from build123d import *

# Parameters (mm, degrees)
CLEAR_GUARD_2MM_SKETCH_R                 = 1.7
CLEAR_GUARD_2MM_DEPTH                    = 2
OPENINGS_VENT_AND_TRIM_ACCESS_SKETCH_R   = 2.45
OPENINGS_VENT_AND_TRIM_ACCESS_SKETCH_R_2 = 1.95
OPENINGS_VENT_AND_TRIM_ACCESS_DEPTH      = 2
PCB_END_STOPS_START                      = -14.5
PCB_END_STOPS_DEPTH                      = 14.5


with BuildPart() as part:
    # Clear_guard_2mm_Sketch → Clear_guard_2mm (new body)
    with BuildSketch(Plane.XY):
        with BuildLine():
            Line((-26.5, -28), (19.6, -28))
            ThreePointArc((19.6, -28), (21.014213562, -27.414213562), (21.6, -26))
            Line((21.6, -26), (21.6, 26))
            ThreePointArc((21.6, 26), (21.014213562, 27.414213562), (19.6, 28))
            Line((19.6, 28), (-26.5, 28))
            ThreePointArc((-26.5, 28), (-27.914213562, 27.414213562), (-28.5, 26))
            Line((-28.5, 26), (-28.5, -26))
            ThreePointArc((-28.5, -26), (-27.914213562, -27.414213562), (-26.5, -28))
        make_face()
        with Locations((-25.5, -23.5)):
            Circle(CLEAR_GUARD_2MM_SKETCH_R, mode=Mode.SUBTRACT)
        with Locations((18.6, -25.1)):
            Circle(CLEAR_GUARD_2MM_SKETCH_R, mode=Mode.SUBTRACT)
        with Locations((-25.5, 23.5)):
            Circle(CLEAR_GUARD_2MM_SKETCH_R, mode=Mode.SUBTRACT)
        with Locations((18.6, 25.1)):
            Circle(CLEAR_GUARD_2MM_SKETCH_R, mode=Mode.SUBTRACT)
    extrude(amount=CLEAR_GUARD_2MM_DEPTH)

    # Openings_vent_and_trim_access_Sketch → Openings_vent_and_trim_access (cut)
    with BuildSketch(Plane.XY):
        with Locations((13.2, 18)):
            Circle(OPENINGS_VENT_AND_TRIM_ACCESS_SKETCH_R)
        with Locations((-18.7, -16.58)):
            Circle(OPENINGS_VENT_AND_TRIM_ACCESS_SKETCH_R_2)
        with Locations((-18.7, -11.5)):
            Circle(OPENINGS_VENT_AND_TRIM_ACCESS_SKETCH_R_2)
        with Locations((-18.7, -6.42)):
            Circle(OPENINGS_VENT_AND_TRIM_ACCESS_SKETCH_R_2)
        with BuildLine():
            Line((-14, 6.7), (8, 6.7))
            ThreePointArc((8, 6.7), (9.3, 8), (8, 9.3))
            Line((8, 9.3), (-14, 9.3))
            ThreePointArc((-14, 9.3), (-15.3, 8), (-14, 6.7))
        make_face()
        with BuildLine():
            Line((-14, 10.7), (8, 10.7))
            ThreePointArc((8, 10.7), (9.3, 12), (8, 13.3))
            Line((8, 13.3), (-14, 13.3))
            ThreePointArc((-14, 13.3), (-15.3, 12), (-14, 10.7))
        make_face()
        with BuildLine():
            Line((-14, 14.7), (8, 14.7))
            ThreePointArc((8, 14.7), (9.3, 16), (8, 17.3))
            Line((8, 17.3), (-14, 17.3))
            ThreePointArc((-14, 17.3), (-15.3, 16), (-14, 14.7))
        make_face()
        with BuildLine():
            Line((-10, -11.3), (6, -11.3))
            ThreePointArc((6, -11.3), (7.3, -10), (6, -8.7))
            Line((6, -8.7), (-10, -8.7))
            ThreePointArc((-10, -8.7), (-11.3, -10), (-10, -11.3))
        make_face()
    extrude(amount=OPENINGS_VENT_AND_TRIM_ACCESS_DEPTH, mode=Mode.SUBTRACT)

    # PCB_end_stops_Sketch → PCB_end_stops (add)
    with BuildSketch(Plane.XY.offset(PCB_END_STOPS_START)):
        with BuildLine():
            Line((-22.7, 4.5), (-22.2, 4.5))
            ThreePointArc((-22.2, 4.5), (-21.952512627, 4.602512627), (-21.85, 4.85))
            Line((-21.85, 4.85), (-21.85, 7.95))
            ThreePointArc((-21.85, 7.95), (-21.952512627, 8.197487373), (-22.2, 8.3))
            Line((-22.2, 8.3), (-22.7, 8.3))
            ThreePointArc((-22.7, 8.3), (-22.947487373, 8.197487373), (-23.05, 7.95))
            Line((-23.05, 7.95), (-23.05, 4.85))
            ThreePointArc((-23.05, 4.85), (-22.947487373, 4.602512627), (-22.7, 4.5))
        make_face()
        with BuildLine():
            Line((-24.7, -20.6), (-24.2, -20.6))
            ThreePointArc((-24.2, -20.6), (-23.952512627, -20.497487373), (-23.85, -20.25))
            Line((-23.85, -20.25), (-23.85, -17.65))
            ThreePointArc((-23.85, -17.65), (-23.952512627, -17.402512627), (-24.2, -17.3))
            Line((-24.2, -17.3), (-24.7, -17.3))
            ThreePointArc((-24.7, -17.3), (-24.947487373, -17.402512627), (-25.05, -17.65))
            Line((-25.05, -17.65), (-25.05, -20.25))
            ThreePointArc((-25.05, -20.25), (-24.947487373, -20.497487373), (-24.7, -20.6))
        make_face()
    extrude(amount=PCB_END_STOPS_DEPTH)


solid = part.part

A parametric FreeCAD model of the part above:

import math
import FreeCAD as App
import Part
import Sketcher

V = App.Vector

doc = App.newDocument("Part")
body = doc.addObject("PartDesign::Body", "Body")

sketch1 = body.newObject("Sketcher::SketchObject", "Sketch")
sketch1.AttachmentSupport = (doc.getObject("XY_Plane"), [""])
sketch1.MapMode = "FlatFace"
sketch1.addGeometry([
    Part.LineSegment(V(-26.5, -28, 0), V(19.6, -28, 0)),
    Part.ArcOfCircle(Part.Circle(V(19.6, -26, 0), V(0, 0, 1), 2), math.radians(-90), math.radians(0)),
    Part.LineSegment(V(21.6, -26, 0), V(21.6, 26, 0)),
    Part.ArcOfCircle(Part.Circle(V(19.6, 26, 0), V(0, 0, 1), 2), math.radians(0), math.radians(90)),
    Part.LineSegment(V(19.6, 28, 0), V(-26.5, 28, 0)),
    Part.ArcOfCircle(Part.Circle(V(-26.5, 26, 0), V(0, 0, 1), 2), math.radians(90), math.radians(180)),
    Part.LineSegment(V(-28.5, 26, 0), V(-28.5, -26, 0)),
    Part.ArcOfCircle(Part.Circle(V(-26.5, -26, 0), V(0, 0, 1), 2), math.radians(-180), math.radians(-90)),
    Part.Circle(V(-25.5, -23.5, 0), V(0, 0, 1), 1.7),
    Part.Circle(V(18.6, -25.1, 0), V(0, 0, 1), 1.7),
    Part.Circle(V(-25.5, 23.5, 0), V(0, 0, 1), 1.7),
    Part.Circle(V(18.6, 25.1, 0), V(0, 0, 1), 1.7),
], False)
sketch1.addConstraint([
    Sketcher.Constraint("Tangent", 0, 2, 1, 1),
    Sketcher.Constraint("Tangent", 1, 2, 2, 1),
    Sketcher.Constraint("Tangent", 2, 2, 3, 1),
    Sketcher.Constraint("Tangent", 3, 2, 4, 1),
    Sketcher.Constraint("Tangent", 4, 2, 5, 1),
    Sketcher.Constraint("Tangent", 5, 2, 6, 1),
    Sketcher.Constraint("Tangent", 6, 2, 7, 1),
    Sketcher.Constraint("Tangent", 7, 2, 0, 1),
    Sketcher.Constraint("Horizontal", 0),
    Sketcher.Constraint("Vertical", 2),
    Sketcher.Constraint("Horizontal", 4),
    Sketcher.Constraint("Vertical", 6),
    Sketcher.Constraint("Equal", 1, 3),
    Sketcher.Constraint("Equal", 3, 5),
    Sketcher.Constraint("Equal", 5, 7),
    Sketcher.Constraint("Equal", 8, 9),
    Sketcher.Constraint("Equal", 9, 10),
    Sketcher.Constraint("Equal", 10, 11),
    Sketcher.Constraint("Symmetric", 8, 3, 10, 3, -1),
    Sketcher.Constraint("Symmetric", 9, 3, 11, 3, -1),
    Sketcher.Constraint("Radius", 1, 2.0),
    Sketcher.Constraint("Diameter", 8, 3.4),
    Sketcher.Constraint("DistanceY", 2, 1, 2, 2, 52.0),
    Sketcher.Constraint("DistanceX", 0, 1, 0, 2, 46.1),
    Sketcher.Constraint("DistanceY", 1, 3, -1, 1, 26.0),
    Sketcher.Constraint("DistanceX", 7, 3, 8, 3, 1.0),
    Sketcher.Constraint("DistanceX", 9, 3, 1, 3, 1.0),
    Sketcher.Constraint("DistanceY", 8, 3, 10, 3, 47.0),
    Sketcher.Constraint("DistanceX", -1, 1, 1, 3, 19.6),
    Sketcher.Constraint("DistanceY", 9, 3, -1, 1, 25.1),
])
pad1 = body.newObject("PartDesign::Pad", "Pad")
pad1.Profile = sketch1
pad1.Length = 2

sketch2 = body.newObject("Sketcher::SketchObject", "Sketch001")
sketch2.AttachmentSupport = (doc.getObject("XY_Plane"), [""])
sketch2.MapMode = "FlatFace"
sketch2.addGeometry([
    Part.Circle(V(13.2, 18, 0), V(0, 0, 1), 2.45),
    Part.Circle(V(-18.7, -16.58, 0), V(0, 0, 1), 1.95),
    Part.Circle(V(-18.7, -11.5, 0), V(0, 0, 1), 1.95),
    Part.Circle(V(-18.7, -6.42, 0), V(0, 0, 1), 1.95),
    Part.LineSegment(V(-14, 6.7, 0), V(8, 6.7, 0)),
    Part.ArcOfCircle(Part.Circle(V(8, 8, 0), V(0, 0, 1), 1.3), math.radians(-90), math.radians(90)),
    Part.LineSegment(V(8, 9.3, 0), V(-14, 9.3, 0)),
    Part.ArcOfCircle(Part.Circle(V(-14, 8, 0), V(0, 0, 1), 1.3), math.radians(90), math.radians(270)),
    Part.LineSegment(V(-14, 10.7, 0), V(8, 10.7, 0)),
    Part.ArcOfCircle(Part.Circle(V(8, 12, 0), V(0, 0, 1), 1.3), math.radians(-90), math.radians(90)),
    Part.LineSegment(V(8, 13.3, 0), V(-14, 13.3, 0)),
    Part.ArcOfCircle(Part.Circle(V(-14, 12, 0), V(0, 0, 1), 1.3), math.radians(90), math.radians(270)),
    Part.LineSegment(V(-14, 14.7, 0), V(8, 14.7, 0)),
    Part.ArcOfCircle(Part.Circle(V(8, 16, 0), V(0, 0, 1), 1.3), math.radians(-90), math.radians(90)),
    Part.LineSegment(V(8, 17.3, 0), V(-14, 17.3, 0)),
    Part.ArcOfCircle(Part.Circle(V(-14, 16, 0), V(0, 0, 1), 1.3), math.radians(90), math.radians(270)),
    Part.LineSegment(V(-10, -11.3, 0), V(6, -11.3, 0)),
    Part.ArcOfCircle(Part.Circle(V(6, -10, 0), V(0, 0, 1), 1.3), math.radians(-90), math.radians(90)),
    Part.LineSegment(V(6, -8.7, 0), V(-10, -8.7, 0)),
    Part.ArcOfCircle(Part.Circle(V(-10, -10, 0), V(0, 0, 1), 1.3), math.radians(90), math.radians(270)),
], False)
sketch2.addConstraint([
    Sketcher.Constraint("Tangent", 4, 2, 5, 1),
    Sketcher.Constraint("Tangent", 5, 2, 6, 1),
    Sketcher.Constraint("Tangent", 6, 2, 7, 1),
    Sketcher.Constraint("Tangent", 7, 2, 4, 1),
    Sketcher.Constraint("Tangent", 8, 2, 9, 1),
    Sketcher.Constraint("Tangent", 9, 2, 10, 1),
    Sketcher.Constraint("Tangent", 10, 2, 11, 1),
    Sketcher.Constraint("Tangent", 11, 2, 8, 1),
    Sketcher.Constraint("Tangent", 12, 2, 13, 1),
    Sketcher.Constraint("Tangent", 13, 2, 14, 1),
    Sketcher.Constraint("Tangent", 14, 2, 15, 1),
    Sketcher.Constraint("Tangent", 15, 2, 12, 1),
    Sketcher.Constraint("Tangent", 16, 2, 17, 1),
    Sketcher.Constraint("Tangent", 17, 2, 18, 1),
    Sketcher.Constraint("Tangent", 18, 2, 19, 1),
    Sketcher.Constraint("Tangent", 19, 2, 16, 1),
    Sketcher.Constraint("Horizontal", 4),
    Sketcher.Constraint("Horizontal", 6),
    Sketcher.Constraint("Horizontal", 8),
    Sketcher.Constraint("Horizontal", 10),
    Sketcher.Constraint("Horizontal", 12),
    Sketcher.Constraint("Horizontal", 14),
    Sketcher.Constraint("Horizontal", 16),
    Sketcher.Constraint("Horizontal", 18),
    Sketcher.Constraint("Equal", 1, 2),
    Sketcher.Constraint("Equal", 2, 3),
    Sketcher.Constraint("Equal", 7, 9),
    Sketcher.Constraint("Equal", 11, 13),
    Sketcher.Constraint("Equal", 15, 17),
    Sketcher.Constraint("Vertical", 1, 3, 2, 3),
    Sketcher.Constraint("Vertical", 2, 3, 3, 3),
    Sketcher.Constraint("Vertical", 5, 3, 9, 3),
    Sketcher.Constraint("Vertical", 7, 3, 11, 3),
    Sketcher.Constraint("Vertical", 9, 3, 13, 3),
    Sketcher.Constraint("Vertical", 11, 3, 15, 3),
    Sketcher.Constraint("Diameter", 0, 4.9),
    Sketcher.Constraint("Diameter", 1, 3.9),
    Sketcher.Constraint("Radius", 5, 1.3),
    Sketcher.Constraint("DistanceX", 4, 1, 4, 2, 22.0),
    Sketcher.Constraint("DistanceX", 16, 1, 16, 2, 16.0),
    Sketcher.Constraint("DistanceY", -1, 1, 0, 3, 18.0),
    Sketcher.Constraint("DistanceX", -1, 1, 5, 3, 8.0),
    Sketcher.Constraint("DistanceY", -1, 1, 5, 3, 8.0),
    Sketcher.Constraint("DistanceY", -1, 1, 9, 3, 12.0),
    Sketcher.Constraint("DistanceY", -1, 1, 13, 3, 16.0),
    Sketcher.Constraint("DistanceX", -1, 1, 17, 3, 6.0),
    Sketcher.Constraint("DistanceY", 17, 3, -1, 1, 10.0),
    Sketcher.Constraint("DistanceX", -1, 1, 0, 3, 13.2),
    Sketcher.Constraint("DistanceX", 1, 3, -1, 1, 18.7),
    Sketcher.Constraint("DistanceY", 2, 3, -1, 1, 11.5),
    Sketcher.Constraint("DistanceY", 1, 3, -1, 1, 16.58),
    Sketcher.Constraint("DistanceY", 3, 3, -1, 1, 6.42),
])
pocket1 = body.newObject("PartDesign::Pocket", "Pocket")
pocket1.Profile = sketch2
pocket1.Length = 2
pocket1.Reversed = True

sketch3 = body.newObject("Sketcher::SketchObject", "Sketch002")
sketch3.AttachmentSupport = (doc.getObject("XY_Plane"), [""])
sketch3.MapMode = "FlatFace"
sketch3.AttachmentOffset = App.Placement(V(0, 0, -14.5), App.Rotation())
sketch3.addGeometry([
    Part.LineSegment(V(-22.7, 4.5, 0), V(-22.2, 4.5, 0)),
    Part.ArcOfCircle(Part.Circle(V(-22.2, 4.85, 0), V(0, 0, 1), 0.35), math.radians(-90), math.radians(0)),
    Part.LineSegment(V(-21.85, 4.85, 0), V(-21.85, 7.95, 0)),
    Part.ArcOfCircle(Part.Circle(V(-22.2, 7.95, 0), V(0, 0, 1), 0.35), math.radians(0), math.radians(90)),
    Part.LineSegment(V(-22.2, 8.3, 0), V(-22.7, 8.3, 0)),
    Part.ArcOfCircle(Part.Circle(V(-22.7, 7.95, 0), V(0, 0, 1), 0.35), math.radians(90), math.radians(180)),
    Part.LineSegment(V(-23.05, 7.95, 0), V(-23.05, 4.85, 0)),
    Part.ArcOfCircle(Part.Circle(V(-22.7, 4.85, 0), V(0, 0, 1), 0.35), math.radians(-180), math.radians(-90)),
    Part.LineSegment(V(-24.7, -20.6, 0), V(-24.2, -20.6, 0)),
    Part.ArcOfCircle(Part.Circle(V(-24.2, -20.25, 0), V(0, 0, 1), 0.35), math.radians(-90), math.radians(0)),
    Part.LineSegment(V(-23.85, -20.25, 0), V(-23.85, -17.65, 0)),
    Part.ArcOfCircle(Part.Circle(V(-24.2, -17.65, 0), V(0, 0, 1), 0.35), math.radians(0), math.radians(90)),
    Part.LineSegment(V(-24.2, -17.3, 0), V(-24.7, -17.3, 0)),
    Part.ArcOfCircle(Part.Circle(V(-24.7, -17.65, 0), V(0, 0, 1), 0.35), math.radians(90), math.radians(180)),
    Part.LineSegment(V(-25.05, -17.65, 0), V(-25.05, -20.25, 0)),
    Part.ArcOfCircle(Part.Circle(V(-24.7, -20.25, 0), V(0, 0, 1), 0.35), math.radians(-180), math.radians(-90)),
], False)
sketch3.addConstraint([
    Sketcher.Constraint("Tangent", 0, 2, 1, 1),
    Sketcher.Constraint("Tangent", 1, 2, 2, 1),
    Sketcher.Constraint("Tangent", 2, 2, 3, 1),
    Sketcher.Constraint("Tangent", 3, 2, 4, 1),
    Sketcher.Constraint("Tangent", 4, 2, 5, 1),
    Sketcher.Constraint("Tangent", 5, 2, 6, 1),
    Sketcher.Constraint("Tangent", 6, 2, 7, 1),
    Sketcher.Constraint("Tangent", 7, 2, 0, 1),
    Sketcher.Constraint("Tangent", 8, 2, 9, 1),
    Sketcher.Constraint("Tangent", 9, 2, 10, 1),
    Sketcher.Constraint("Tangent", 10, 2, 11, 1),
    Sketcher.Constraint("Tangent", 11, 2, 12, 1),
    Sketcher.Constraint("Tangent", 12, 2, 13, 1),
    Sketcher.Constraint("Tangent", 13, 2, 14, 1),
    Sketcher.Constraint("Tangent", 14, 2, 15, 1),
    Sketcher.Constraint("Tangent", 15, 2, 8, 1),
    Sketcher.Constraint("Horizontal", 0),
    Sketcher.Constraint("Vertical", 2),
    Sketcher.Constraint("Horizontal", 4),
    Sketcher.Constraint("Vertical", 6),
    Sketcher.Constraint("Horizontal", 8),
    Sketcher.Constraint("Vertical", 10),
    Sketcher.Constraint("Horizontal", 12),
    Sketcher.Constraint("Vertical", 14),
    Sketcher.Constraint("Equal", 1, 3),
    Sketcher.Constraint("Equal", 3, 5),
    Sketcher.Constraint("Equal", 5, 7),
    Sketcher.Constraint("Equal", 7, 9),
    Sketcher.Constraint("Equal", 9, 11),
    Sketcher.Constraint("Equal", 11, 13),
    Sketcher.Constraint("Equal", 13, 15),
    Sketcher.Constraint("Equal", 4, 8),
    Sketcher.Constraint("Radius", 1, 0.35),
    Sketcher.Constraint("DistanceX", 0, 1, 0, 2, 0.5),
    Sketcher.Constraint("DistanceY", 2, 1, 2, 2, 3.1),
    Sketcher.Constraint("DistanceY", 10, 1, 10, 2, 2.6),
    Sketcher.Constraint("DistanceX", 9, 3, 1, 3, 2.0),
    Sketcher.Constraint("DistanceX", 1, 3, -1, 1, 22.2),
    Sketcher.Constraint("DistanceY", -1, 1, 0, 2, 4.5),
    Sketcher.Constraint("DistanceY", 8, 2, -1, 1, 20.6),
])
pad2 = body.newObject("PartDesign::Pad", "Pad001")
pad2.Profile = sketch3
pad2.Length = 14.5

doc.recompute()
